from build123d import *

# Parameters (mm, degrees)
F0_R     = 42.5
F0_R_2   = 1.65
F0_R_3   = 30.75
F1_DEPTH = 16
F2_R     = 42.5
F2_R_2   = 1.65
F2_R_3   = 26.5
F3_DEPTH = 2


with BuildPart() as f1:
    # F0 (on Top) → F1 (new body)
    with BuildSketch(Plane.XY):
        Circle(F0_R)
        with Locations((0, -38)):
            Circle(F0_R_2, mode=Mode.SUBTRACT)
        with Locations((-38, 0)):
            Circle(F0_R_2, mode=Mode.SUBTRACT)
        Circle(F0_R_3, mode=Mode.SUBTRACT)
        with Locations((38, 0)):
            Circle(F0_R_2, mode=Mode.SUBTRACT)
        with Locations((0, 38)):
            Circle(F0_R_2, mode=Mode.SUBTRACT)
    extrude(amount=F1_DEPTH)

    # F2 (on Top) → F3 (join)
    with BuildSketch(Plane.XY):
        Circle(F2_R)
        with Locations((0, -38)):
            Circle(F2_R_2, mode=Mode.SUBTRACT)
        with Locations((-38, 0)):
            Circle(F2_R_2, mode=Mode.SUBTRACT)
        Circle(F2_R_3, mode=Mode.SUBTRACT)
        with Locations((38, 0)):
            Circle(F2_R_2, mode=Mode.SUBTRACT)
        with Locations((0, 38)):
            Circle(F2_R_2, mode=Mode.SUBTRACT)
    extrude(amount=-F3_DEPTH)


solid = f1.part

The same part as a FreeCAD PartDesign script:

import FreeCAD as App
import Part
import Sketcher
from FreeCAD import Vector

doc = App.newDocument("Part")
body = doc.addObject("PartDesign::Body", "Body")

# Sketch on XY plane
sketch1 = body.newObject("Sketcher::SketchObject", "Sketch")
sketch1.AttachmentSupport = (doc.getObject("XY_Plane"), [""])
sketch1.MapMode = "FlatFace"
sketch1.addGeometry([
    Part.Circle(Vector(0, 0, 0), Vector(0, 0, 1), 42.5),  # 0
    Part.Circle(Vector(0, -38, 0), Vector(0, 0, 1), 1.65),  # 1
    Part.Circle(Vector(-38, 0, 0), Vector(0, 0, 1), 1.65),  # 2
    Part.Circle(Vector(0, 0, 0), Vector(0, 0, 1), 30.75),  # 3
    Part.Circle(Vector(38, 0, 0), Vector(0, 0, 1), 1.65),  # 4
    Part.Circle(Vector(0, 38, 0), Vector(0, 0, 1), 1.65),  # 5
], False)
sketch1.addConstraint([
    Sketcher.Constraint("Coincident", 0, 3, -1, 1),
    Sketcher.Constraint("Coincident", 3, 3, -1, 1),
    Sketcher.Constraint("Equal", 1, 2),
    Sketcher.Constraint("Equal", 2, 4),
    Sketcher.Constraint("Equal", 4, 5),
    Sketcher.Constraint("Symmetric", 2, 3, 4, 3, -1, 1),
    Sketcher.Constraint("Symmetric", 1, 3, 5, 3, -1, 1),
    Sketcher.Constraint("PointOnObject", 1, 3, -2),
    Sketcher.Constraint("PointOnObject", 2, 3, -1),
    Sketcher.Constraint("Diameter", 0, 85.0),
    Sketcher.Constraint("Diameter", 1, 3.3),
    Sketcher.Constraint("Diameter", 3, 61.5),
    Sketcher.Constraint("DistanceY", 1, 3, -1, 1, 38.0),
    Sketcher.Constraint("DistanceX", 2, 3, -1, 1, 38.0),
])
pad1 = body.newObject("PartDesign::Pad", "Pad")
pad1.Profile = sketch1
pad1.Length = 16

# Sketch on XY plane
sketch2 = body.newObject("Sketcher::SketchObject", "Sketch001")
sketch2.AttachmentSupport = (doc.getObject("XY_Plane"), [""])
sketch2.MapMode = "FlatFace"
sketch2.addGeometry([
    Part.Circle(Vector(0, 0, 0), Vector(0, 0, 1), 42.5),  # 0
    Part.Circle(Vector(0, -38, 0), Vector(0, 0, 1), 1.65),  # 1
    Part.Circle(Vector(-38, 0, 0), Vector(0, 0, 1), 1.65),  # 2
    Part.Circle(Vector(0, 0, 0), Vector(0, 0, 1), 26.5),  # 3
    Part.Circle(Vector(38, 0, 0), Vector(0, 0, 1), 1.65),  # 4
    Part.Circle(Vector(0, 38, 0), Vector(0, 0, 1), 1.65),  # 5
], False)
sketch2.addConstraint([
    Sketcher.Constraint("Coincident", 0, 3, -1, 1),
    Sketcher.Constraint("Coincident", 3, 3, -1, 1),
    Sketcher.Constraint("Equal", 1, 2),
    Sketcher.Constraint("Equal", 2, 4),
    Sketcher.Constraint("Equal", 4, 5),
    Sketcher.Constraint("Symmetric", 2, 3, 4, 3, -1, 1),
    Sketcher.Constraint("Symmetric", 1, 3, 5, 3, -1, 1),
    Sketcher.Constraint("PointOnObject", 1, 3, -2),
    Sketcher.Constraint("PointOnObject", 2, 3, -1),
    Sketcher.Constraint("Diameter", 0, 85.0),
    Sketcher.Constraint("Diameter", 3, 53.0),
    Sketcher.Constraint("Diameter", 1, 3.3),
    Sketcher.Constraint("DistanceY", 1, 3, -1, 1, 38.0),
    Sketcher.Constraint("DistanceX", 2, 3, -1, 1, 38.0),
])
pad2 = body.newObject("PartDesign::Pad", "Pad001")
pad2.Profile = sketch2
pad2.Length = 2
pad2.Reversed = True

doc.recompute()
